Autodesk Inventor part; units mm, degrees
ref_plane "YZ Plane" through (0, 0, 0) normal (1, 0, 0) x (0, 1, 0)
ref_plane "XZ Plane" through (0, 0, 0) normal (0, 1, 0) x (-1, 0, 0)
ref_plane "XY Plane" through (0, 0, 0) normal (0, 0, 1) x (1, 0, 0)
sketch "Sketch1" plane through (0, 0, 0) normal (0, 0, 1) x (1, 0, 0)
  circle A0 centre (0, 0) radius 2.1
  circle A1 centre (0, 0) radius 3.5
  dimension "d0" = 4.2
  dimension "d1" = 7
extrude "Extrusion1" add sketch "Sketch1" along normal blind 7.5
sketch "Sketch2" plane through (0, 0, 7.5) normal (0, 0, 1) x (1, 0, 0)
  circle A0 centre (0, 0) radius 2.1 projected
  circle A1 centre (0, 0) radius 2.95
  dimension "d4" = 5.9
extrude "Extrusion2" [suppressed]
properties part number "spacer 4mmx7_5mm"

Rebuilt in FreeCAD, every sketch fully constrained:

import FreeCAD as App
import Part
import Sketcher
from FreeCAD import Vector

doc = App.newDocument("Part")
body = doc.addObject("PartDesign::Body", "Body")

# Sketch on XY plane
sketch1 = body.newObject("Sketcher::SketchObject", "Sketch")
sketch1.AttachmentSupport = (doc.getObject("XY_Plane"), [""])
sketch1.MapMode = "FlatFace"
sketch1.addGeometry([
    Part.Circle(Vector(0, 0, 0), Vector(0, 0, 1), 3.5),
    Part.Circle(Vector(0, 0, 0), Vector(0, 0, 1), 2.1),
], False)
sketch1.addConstraint([
    Sketcher.Constraint("Coincident", 0, 3, -1, 1),
    Sketcher.Constraint("Coincident", 1, 3, -1, 1),
    Sketcher.Constraint("Diameter", 0, 7.0),
    Sketcher.Constraint("Diameter", 1, 4.2),
])
pad1 = body.newObject("PartDesign::Pad", "Pad")
pad1.Profile = sketch1
pad1.Length = 7.5

doc.recompute()
